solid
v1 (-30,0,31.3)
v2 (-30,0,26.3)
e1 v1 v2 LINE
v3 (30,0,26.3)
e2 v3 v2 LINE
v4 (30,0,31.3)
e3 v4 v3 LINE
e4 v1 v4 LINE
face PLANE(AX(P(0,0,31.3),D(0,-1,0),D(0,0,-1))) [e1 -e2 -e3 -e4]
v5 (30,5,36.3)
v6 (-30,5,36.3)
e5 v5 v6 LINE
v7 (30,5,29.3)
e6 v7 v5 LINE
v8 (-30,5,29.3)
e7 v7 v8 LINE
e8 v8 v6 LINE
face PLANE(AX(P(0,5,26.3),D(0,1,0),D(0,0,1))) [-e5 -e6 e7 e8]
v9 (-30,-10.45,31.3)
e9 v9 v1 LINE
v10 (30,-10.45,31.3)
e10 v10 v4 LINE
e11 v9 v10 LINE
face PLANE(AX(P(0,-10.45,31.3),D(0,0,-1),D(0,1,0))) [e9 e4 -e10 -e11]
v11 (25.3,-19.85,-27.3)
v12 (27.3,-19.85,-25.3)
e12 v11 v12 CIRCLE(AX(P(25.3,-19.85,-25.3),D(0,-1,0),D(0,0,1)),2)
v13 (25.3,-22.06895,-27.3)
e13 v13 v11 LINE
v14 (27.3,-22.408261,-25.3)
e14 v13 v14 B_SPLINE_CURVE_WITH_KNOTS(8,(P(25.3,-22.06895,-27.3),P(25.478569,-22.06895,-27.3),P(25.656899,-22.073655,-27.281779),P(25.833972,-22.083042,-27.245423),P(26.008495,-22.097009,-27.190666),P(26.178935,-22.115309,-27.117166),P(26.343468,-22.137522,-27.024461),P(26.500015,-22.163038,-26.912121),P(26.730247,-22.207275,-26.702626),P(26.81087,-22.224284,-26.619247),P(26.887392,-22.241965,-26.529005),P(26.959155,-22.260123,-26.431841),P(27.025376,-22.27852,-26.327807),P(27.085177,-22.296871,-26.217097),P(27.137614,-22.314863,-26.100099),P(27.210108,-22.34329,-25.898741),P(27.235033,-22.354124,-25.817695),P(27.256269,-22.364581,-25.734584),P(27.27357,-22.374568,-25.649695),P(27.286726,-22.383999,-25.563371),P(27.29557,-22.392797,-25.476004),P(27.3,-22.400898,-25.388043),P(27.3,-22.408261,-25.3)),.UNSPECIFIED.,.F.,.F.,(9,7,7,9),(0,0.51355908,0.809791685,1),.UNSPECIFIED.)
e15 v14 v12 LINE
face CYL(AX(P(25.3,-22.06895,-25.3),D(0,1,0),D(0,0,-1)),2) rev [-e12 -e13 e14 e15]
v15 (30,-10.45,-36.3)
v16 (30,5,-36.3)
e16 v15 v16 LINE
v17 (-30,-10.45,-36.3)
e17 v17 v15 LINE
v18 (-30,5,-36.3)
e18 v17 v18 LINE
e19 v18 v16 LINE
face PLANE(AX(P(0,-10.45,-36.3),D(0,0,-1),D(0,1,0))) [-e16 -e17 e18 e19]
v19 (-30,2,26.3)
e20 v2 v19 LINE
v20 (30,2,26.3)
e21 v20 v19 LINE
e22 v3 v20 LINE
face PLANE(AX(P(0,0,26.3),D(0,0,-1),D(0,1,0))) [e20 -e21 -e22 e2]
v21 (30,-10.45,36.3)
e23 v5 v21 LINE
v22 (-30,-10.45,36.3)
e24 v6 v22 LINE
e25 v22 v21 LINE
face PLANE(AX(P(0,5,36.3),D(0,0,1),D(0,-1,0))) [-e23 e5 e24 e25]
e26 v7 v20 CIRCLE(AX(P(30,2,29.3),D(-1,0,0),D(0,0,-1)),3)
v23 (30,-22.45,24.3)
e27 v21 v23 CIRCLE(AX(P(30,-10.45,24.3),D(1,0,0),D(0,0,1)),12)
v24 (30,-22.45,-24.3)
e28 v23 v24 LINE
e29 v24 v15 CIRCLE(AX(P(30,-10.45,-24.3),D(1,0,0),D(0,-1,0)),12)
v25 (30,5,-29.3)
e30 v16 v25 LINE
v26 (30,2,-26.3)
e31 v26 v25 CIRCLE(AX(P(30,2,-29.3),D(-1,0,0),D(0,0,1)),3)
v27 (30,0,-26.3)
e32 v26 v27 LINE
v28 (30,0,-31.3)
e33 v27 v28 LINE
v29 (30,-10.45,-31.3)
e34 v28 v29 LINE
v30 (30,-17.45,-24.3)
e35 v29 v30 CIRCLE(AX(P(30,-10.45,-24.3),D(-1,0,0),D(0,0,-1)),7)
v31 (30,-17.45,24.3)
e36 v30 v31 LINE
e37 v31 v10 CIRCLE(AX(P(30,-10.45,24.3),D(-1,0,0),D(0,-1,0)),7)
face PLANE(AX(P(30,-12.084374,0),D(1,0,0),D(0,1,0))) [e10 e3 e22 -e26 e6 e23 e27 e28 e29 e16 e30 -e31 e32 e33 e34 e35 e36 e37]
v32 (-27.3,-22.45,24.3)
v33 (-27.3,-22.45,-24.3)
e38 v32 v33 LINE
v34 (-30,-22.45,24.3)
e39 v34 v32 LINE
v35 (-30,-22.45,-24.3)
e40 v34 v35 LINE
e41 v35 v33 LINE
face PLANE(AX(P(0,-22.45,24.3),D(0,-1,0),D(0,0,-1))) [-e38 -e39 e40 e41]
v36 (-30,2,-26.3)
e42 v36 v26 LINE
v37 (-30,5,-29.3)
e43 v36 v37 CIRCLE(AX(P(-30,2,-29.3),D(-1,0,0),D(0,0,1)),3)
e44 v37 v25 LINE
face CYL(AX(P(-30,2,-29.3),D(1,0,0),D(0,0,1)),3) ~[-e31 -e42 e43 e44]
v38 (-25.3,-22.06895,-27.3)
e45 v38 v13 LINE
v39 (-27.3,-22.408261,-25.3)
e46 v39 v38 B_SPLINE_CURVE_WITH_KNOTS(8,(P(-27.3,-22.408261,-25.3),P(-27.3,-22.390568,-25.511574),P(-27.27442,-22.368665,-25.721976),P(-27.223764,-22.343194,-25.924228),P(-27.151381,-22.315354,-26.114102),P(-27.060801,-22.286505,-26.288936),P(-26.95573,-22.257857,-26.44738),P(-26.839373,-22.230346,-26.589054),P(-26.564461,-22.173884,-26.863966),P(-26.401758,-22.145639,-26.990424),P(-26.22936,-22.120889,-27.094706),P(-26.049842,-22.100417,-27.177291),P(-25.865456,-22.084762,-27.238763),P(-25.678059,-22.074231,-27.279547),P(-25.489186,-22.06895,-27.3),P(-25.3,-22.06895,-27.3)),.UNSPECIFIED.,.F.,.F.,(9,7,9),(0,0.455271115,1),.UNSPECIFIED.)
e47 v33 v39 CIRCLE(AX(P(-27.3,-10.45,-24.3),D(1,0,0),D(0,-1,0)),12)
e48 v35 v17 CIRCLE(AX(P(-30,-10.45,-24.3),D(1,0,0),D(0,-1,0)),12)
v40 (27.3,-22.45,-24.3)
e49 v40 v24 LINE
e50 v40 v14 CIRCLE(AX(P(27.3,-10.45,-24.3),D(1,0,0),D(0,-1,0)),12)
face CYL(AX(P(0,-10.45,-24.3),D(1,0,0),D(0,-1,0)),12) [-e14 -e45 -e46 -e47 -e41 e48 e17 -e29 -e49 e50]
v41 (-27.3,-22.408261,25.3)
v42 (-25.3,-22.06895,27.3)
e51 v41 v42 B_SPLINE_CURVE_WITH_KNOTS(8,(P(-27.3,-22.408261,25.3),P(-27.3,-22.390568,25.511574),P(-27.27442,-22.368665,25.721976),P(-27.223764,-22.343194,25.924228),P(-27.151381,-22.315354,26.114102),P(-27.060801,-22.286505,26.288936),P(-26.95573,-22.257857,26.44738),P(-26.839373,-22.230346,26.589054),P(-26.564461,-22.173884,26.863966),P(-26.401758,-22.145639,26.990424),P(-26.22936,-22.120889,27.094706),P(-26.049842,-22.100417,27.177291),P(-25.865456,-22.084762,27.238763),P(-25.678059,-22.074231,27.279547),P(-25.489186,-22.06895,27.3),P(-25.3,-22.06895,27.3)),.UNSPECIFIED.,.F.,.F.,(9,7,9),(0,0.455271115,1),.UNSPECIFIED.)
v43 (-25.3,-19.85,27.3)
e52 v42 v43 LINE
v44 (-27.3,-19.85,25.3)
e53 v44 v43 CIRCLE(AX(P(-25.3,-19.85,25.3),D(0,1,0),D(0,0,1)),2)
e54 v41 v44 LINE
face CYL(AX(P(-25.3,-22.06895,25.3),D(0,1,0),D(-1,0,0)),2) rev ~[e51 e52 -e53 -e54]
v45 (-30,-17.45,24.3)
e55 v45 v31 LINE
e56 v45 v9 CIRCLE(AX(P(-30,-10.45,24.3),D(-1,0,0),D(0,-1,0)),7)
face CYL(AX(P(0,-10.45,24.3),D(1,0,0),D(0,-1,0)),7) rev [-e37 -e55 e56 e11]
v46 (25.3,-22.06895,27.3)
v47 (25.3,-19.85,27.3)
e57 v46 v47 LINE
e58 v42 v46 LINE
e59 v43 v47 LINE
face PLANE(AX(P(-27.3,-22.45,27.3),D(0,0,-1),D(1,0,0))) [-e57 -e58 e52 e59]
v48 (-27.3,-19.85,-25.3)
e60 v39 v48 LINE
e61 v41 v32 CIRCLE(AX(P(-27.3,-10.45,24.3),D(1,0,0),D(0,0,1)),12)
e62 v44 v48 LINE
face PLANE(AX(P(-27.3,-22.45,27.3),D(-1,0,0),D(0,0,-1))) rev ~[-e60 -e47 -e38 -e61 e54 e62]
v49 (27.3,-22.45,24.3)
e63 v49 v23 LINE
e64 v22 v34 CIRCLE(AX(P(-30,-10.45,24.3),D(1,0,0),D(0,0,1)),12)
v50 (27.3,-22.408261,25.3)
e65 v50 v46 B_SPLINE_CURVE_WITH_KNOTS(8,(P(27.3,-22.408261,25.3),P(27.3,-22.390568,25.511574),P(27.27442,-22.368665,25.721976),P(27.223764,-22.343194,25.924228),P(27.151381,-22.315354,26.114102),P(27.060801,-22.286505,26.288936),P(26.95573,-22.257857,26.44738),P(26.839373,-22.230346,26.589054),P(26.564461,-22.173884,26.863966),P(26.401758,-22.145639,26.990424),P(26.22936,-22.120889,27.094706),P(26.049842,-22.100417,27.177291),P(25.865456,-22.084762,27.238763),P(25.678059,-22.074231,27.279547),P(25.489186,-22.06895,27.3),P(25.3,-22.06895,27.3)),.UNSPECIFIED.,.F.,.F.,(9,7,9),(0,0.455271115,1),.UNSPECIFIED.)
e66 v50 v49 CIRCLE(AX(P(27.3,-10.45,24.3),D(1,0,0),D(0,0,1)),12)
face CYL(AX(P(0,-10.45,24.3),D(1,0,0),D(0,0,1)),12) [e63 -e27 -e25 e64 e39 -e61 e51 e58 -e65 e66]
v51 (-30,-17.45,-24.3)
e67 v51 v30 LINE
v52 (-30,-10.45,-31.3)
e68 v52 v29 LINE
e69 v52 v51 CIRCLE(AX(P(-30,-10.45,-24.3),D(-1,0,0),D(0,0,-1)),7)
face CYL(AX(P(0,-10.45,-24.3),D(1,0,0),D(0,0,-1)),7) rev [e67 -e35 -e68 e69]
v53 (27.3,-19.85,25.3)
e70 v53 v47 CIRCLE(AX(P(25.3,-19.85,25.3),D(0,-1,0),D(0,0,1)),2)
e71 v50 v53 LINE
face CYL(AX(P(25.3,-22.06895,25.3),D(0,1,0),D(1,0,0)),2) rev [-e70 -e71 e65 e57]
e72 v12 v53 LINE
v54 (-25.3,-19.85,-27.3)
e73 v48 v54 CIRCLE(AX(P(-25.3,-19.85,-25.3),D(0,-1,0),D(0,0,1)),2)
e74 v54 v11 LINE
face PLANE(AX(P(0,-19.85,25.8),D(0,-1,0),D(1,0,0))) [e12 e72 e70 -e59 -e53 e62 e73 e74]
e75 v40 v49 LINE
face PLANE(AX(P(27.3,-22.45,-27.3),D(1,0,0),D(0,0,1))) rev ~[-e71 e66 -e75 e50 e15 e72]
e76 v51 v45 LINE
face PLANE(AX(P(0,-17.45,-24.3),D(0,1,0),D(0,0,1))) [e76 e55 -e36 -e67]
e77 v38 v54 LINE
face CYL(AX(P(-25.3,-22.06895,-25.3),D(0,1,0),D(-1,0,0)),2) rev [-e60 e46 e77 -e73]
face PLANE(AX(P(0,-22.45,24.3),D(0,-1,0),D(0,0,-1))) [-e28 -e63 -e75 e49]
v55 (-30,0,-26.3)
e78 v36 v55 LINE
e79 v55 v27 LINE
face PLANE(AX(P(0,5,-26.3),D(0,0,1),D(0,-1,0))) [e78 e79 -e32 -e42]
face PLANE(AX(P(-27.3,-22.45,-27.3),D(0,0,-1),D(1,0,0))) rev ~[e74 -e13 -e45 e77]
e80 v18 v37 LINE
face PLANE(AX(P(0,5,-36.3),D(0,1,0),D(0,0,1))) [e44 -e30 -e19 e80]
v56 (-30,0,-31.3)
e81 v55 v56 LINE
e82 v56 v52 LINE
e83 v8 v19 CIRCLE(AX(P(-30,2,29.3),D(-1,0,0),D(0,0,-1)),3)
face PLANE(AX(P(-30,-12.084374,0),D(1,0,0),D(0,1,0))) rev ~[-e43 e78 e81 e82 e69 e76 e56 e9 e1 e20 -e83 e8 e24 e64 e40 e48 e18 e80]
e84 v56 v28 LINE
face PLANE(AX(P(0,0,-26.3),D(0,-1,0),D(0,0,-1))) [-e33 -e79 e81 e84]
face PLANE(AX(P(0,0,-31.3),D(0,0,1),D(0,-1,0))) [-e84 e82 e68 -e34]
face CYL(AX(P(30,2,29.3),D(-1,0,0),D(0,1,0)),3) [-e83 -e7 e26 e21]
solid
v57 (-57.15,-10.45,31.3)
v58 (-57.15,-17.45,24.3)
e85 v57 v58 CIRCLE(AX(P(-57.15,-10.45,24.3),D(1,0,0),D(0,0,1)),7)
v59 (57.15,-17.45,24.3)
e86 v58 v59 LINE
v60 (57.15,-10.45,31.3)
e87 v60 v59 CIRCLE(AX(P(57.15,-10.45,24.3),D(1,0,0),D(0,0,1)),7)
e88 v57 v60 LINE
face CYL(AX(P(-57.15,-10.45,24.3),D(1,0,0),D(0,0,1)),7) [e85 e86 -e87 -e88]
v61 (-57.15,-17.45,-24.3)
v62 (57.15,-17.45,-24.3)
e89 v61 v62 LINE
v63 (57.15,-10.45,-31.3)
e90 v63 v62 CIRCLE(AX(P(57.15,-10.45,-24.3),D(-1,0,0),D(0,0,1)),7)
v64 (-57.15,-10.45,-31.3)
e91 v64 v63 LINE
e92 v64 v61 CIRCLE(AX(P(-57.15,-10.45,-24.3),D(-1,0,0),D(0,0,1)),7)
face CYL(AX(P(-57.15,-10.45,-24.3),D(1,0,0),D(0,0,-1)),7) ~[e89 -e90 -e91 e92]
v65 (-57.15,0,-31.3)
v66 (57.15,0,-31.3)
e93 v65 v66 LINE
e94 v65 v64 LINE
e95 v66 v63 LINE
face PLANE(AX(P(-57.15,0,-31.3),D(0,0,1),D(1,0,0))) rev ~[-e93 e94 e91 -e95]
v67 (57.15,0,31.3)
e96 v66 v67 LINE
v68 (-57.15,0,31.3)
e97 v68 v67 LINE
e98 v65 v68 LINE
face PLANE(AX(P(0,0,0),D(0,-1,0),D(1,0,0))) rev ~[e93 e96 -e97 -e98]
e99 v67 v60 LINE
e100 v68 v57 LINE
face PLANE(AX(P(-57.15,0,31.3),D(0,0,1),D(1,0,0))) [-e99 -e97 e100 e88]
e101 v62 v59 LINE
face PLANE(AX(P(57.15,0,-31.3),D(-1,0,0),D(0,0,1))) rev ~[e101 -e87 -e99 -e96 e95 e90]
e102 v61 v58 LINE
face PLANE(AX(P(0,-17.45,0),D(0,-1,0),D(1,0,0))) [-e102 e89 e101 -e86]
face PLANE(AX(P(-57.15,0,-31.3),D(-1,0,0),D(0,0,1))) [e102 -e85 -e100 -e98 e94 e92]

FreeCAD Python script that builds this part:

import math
import FreeCAD as App
import Part
import Sketcher


def edges_at(feature, points):
    """Names of the edges that pass closest to the given points."""
    edges = feature.Shape.Edges
    near = lambda p: min(range(len(edges)), key=lambda i: edges[i].distToShape(Part.Vertex(*p))[0])
    return sorted({f"Edge{near(p) + 1}" for p in points})

doc = App.newDocument("Part")
body = doc.addObject("PartDesign::Body", "Body")

# Sketch on XZ plane
sketch1 = body.newObject("Sketcher::SketchObject", "Sketch")
sketch1.AttachmentSupport = (doc.getObject("XZ_Plane"), [""])
sketch1.MapMode = "FlatFace"
sketch1.addGeometry([
    Part.LineSegment(App.Vector(-57, 31, 0), App.Vector(-57, -31, 0)),
    Part.LineSegment(App.Vector(-57, -31, 0), App.Vector(57, -31, 0)),
    Part.LineSegment(App.Vector(57, -31, 0), App.Vector(57, 31, 0)),
    Part.LineSegment(App.Vector(57, 31, 0), App.Vector(-57, 31, 0)),
], False)
sketch1.addConstraint([
    Sketcher.Constraint("Coincident", 0, 2, 1, 1),
    Sketcher.Constraint("Coincident", 1, 2, 2, 1),
    Sketcher.Constraint("Coincident", 2, 2, 3, 1),
    Sketcher.Constraint("Coincident", 3, 2, 0, 1),
    Sketcher.Constraint("Vertical", 0),
    Sketcher.Constraint("Horizontal", 1),
    Sketcher.Constraint("Vertical", 2),
    Sketcher.Constraint("Horizontal", 3),
    Sketcher.Constraint("Symmetric", 0, 2, 2, 2, -1, 1),
    Sketcher.Constraint("DistanceX", 1, 1, 1, 2, 114.3),
    Sketcher.Constraint("DistanceY", 0, 2, 0, 1, 62.6),
])
pad1 = body.newObject("PartDesign::Pad", "Pad")
pad1.Profile = sketch1
pad1.Length = 17.45
doc.recompute()

fillet = body.newObject("PartDesign::Fillet", "Fillet")
fillet.Base = (pad1, edges_at(pad1, [(0, -17.45, 31.3), (0, -17.45, -31.3)]))
fillet.Radius = 7
body2 = doc.addObject("PartDesign::Body", "Body001")

# Sketch on YZ plane
sketch2 = body2.newObject("Sketcher::SketchObject", "Sketch001")
sketch2.AttachmentSupport = (doc.getObject("YZ_Plane001"), [""])
sketch2.MapMode = "FlatFace"
sketch2.addGeometry([
    Part.LineSegment(App.Vector(5, 36, 0), App.Vector(-10, 36, 0)),  # 0
    Part.ArcOfCircle(Part.Circle(App.Vector(-10, 24, 0), App.Vector(0, 0, 1), 12), math.radians(90), math.radians(180)),  # 1
    Part.LineSegment(App.Vector(-22, 24, 0), App.Vector(-22, -24, 0)),  # 2
    Part.ArcOfCircle(Part.Circle(App.Vector(-10, -24, 0), App.Vector(0, 0, 1), 12), math.radians(180), math.radians(270)),  # 3
    Part.LineSegment(App.Vector(-10, -36, 0), App.Vector(5, -36, 0)),  # 4
    Part.LineSegment(App.Vector(5, -36, 0), App.Vector(5, -26, 0)),  # 5
    Part.LineSegment(App.Vector(5, -26, 0), App.Vector(0, -26, 0)),  # 6
    Part.LineSegment(App.Vector(0, -26, 0), App.Vector(0, -31, 0)),  # 7
    Part.LineSegment(App.Vector(0, -31, 0), App.Vector(-10, -31, 0)),  # 8
    Part.ArcOfCircle(Part.Circle(App.Vector(-10, -24, 0), App.Vector(0, 0, 1), 7), math.radians(180), math.radians(270)),  # 9
    Part.LineSegment(App.Vector(-17, -24, 0), App.Vector(-17, 24, 0)),  # 10
    Part.ArcOfCircle(Part.Circle(App.Vector(-10, 24, 0), App.Vector(0, 0, 1), 7), math.radians(90), math.radians(180)),  # 11
    Part.LineSegment(App.Vector(-10, 31, 0), App.Vector(0, 31, 0)),  # 12
    Part.LineSegment(App.Vector(0, 31, 0), App.Vector(0, 26, 0)),  # 13
    Part.LineSegment(App.Vector(0, 26, 0), App.Vector(5, 26, 0)),  # 14
    Part.LineSegment(App.Vector(5, 26, 0), App.Vector(5, 36, 0)),  # 15
], False)
sketch2.addConstraint([
    Sketcher.Constraint("Tangent", 0, 2, 1, 1),
    Sketcher.Constraint("Tangent", 1, 2, 2, 1),
    Sketcher.Constraint("Tangent", 2, 2, 3, 1),
    Sketcher.Constraint("Tangent", 3, 2, 4, 1),
    Sketcher.Constraint("Coincident", 4, 2, 5, 1),
    Sketcher.Constraint("Coincident", 5, 2, 6, 1),
    Sketcher.Constraint("Coincident", 6, 2, 7, 1),
    Sketcher.Constraint("Coincident", 7, 2, 8, 1),
    Sketcher.Constraint("Tangent", 8, 2, 9, 2),
    Sketcher.Constraint("Tangent", 9, 1, 10, 1),
    Sketcher.Constraint("Tangent", 10, 2, 11, 2),
    Sketcher.Constraint("Tangent", 11, 1, 12, 1),
    Sketcher.Constraint("Coincident", 12, 2, 13, 1),
    Sketcher.Constraint("Coincident", 13, 2, 14, 1),
    Sketcher.Constraint("Coincident", 14, 2, 15, 1),
    Sketcher.Constraint("Coincident", 15, 2, 0, 1),
    Sketcher.Constraint("Horizontal", 0),
    Sketcher.Constraint("Vertical", 2),
    Sketcher.Constraint("Horizontal", 4),
    Sketcher.Constraint("Vertical", 5),
    Sketcher.Constraint("Horizontal", 6),
    Sketcher.Constraint("Vertical", 7),
    Sketcher.Constraint("Horizontal", 8),
    Sketcher.Constraint("Vertical", 10),
    Sketcher.Constraint("Horizontal", 12),
    Sketcher.Constraint("Vertical", 13),
    Sketcher.Constraint("Horizontal", 14),
    Sketcher.Constraint("Vertical", 15),
    Sketcher.Constraint("Coincident", 9, 3, 3, 3),
    Sketcher.Constraint("Coincident", 11, 3, 1, 3),
    Sketcher.Constraint("Equal", 1, 3),
    Sketcher.Constraint("Symmetric", 7, 2, 12, 2, -1, 1),
    Sketcher.Constraint("Symmetric", 6, 2, 13, 2, -1),
    Sketcher.Constraint("Vertical", 5, 2, 14, 2),
    Sketcher.Constraint("Equal", 14, 7),
    Sketcher.Constraint("Radius", 1, 12.0),
    Sketcher.Constraint("Radius", 9, 7.0),
    Sketcher.Constraint("DistanceX", 6, 2, 6, 1, 5.0),
    Sketcher.Constraint("DistanceY", 2, 2, 2, 1, 48.6),
    Sketcher.Constraint("DistanceX", 0, 2, 0, 1, 15.45),
])
pad2 = body2.newObject("PartDesign::Pad", "Pad001")
pad2.Profile = sketch2
pad2.Length = 60
pad2.Midplane = True
doc.recompute()

fillet2 = body2.newObject("PartDesign::Fillet", "Fillet001")
fillet2.Base = (pad2, edges_at(pad2, [(0, 5, 26.3), (0, 5, -26.3)]))
fillet2.Radius = 3

# Sketch on XZ plane
sketch3 = body2.newObject("Sketcher::SketchObject", "Sketch002")
sketch3.AttachmentSupport = (doc.getObject("XZ_Plane001"), [""])
sketch3.MapMode = "FlatFace"
sketch3.AttachmentOffset = App.Placement(App.Vector(0, 0, 22.45), App.Rotation())
sketch3.addGeometry([
    Part.LineSegment(App.Vector(-27, 27, 0), App.Vector(-27, -27, 0)),
    Part.LineSegment(App.Vector(-27, -27, 0), App.Vector(27, -27, 0)),
    Part.LineSegment(App.Vector(27, -27, 0), App.Vector(27, 27, 0)),
    Part.LineSegment(App.Vector(27, 27, 0), App.Vector(-27, 27, 0)),
], False)
sketch3.addConstraint([
    Sketcher.Constraint("Coincident", 0, 2, 1, 1),
    Sketcher.Constraint("Coincident", 1, 2, 2, 1),
    Sketcher.Constraint("Coincident", 2, 2, 3, 1),
    Sketcher.Constraint("Coincident", 3, 2, 0, 1),
    Sketcher.Constraint("Vertical", 0),
    Sketcher.Constraint("Horizontal", 1),
    Sketcher.Constraint("Vertical", 2),
    Sketcher.Constraint("Horizontal", 3),
    Sketcher.Constraint("Symmetric", 0, 2, 2, 2, -1, 1),
    Sketcher.Constraint("Equal", 3, 0),
    Sketcher.Constraint("DistanceX", 1, 1, 1, 2, 54.6),
])
pocket1 = body2.newObject("PartDesign::Pocket", "Pocket")
pocket1.Profile = sketch3
pocket1.Length = 2.6
doc.recompute()

fillet3 = body2.newObject("PartDesign::Fillet", "Fillet002")
fillet3.Base = (pocket1, edges_at(pocket1, [
    (-27.3, -20.959, 27.3),
    (27.3, -20.959, 27.3),
    (27.3, -20.959, -27.3),
    (-27.3, -20.959, -27.3),
]))
fillet3.Radius = 2

doc.recompute()
